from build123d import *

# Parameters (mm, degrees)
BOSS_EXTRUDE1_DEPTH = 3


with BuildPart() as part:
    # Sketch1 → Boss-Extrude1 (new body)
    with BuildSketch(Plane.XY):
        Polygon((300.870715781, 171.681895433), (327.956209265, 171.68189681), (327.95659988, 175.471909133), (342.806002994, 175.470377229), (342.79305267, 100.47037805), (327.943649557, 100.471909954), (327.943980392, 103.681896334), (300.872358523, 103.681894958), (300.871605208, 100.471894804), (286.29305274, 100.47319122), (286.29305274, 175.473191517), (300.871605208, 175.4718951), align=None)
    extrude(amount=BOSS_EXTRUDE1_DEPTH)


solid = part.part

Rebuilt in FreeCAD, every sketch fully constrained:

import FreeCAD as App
import Part
import Sketcher
from FreeCAD import Vector
Q = App.Units.Quantity

doc = App.newDocument("Part")
body = doc.addObject("PartDesign::Body", "Body")

# Sketch on XY plane
sketch1 = body.newObject("Sketcher::SketchObject", "Sketch")
sketch1.AttachmentSupport = (doc.getObject("XY_Plane"), [""])
sketch1.MapMode = "FlatFace"
sketch1.addGeometry([
    Part.LineSegment(Vector(327.956209, 171.681897, 0), Vector(300.870716, 171.681895, 0)),  # 0
    Part.LineSegment(Vector(300.870716, 171.681895, 0), Vector(300.871605, 175.471895, 0)),  # 1
    Part.LineSegment(Vector(300.871605, 175.471895, 0), Vector(286.293053, 175.473192, 0)),  # 2
    Part.LineSegment(Vector(286.293053, 175.473192, 0), Vector(286.293053, 100.473191, 0)),  # 3
    Part.LineSegment(Vector(286.293053, 100.473191, 0), Vector(300.871605, 100.471895, 0)),  # 4
    Part.LineSegment(Vector(300.871605, 100.471895, 0), Vector(300.872359, 103.681895, 0)),  # 5
    Part.LineSegment(Vector(300.872359, 103.681895, 0), Vector(327.94398, 103.681896, 0)),  # 6
    Part.LineSegment(Vector(327.94398, 103.681896, 0), Vector(327.94365, 100.47191, 0)),  # 7
    Part.LineSegment(Vector(327.94365, 100.47191, 0), Vector(342.793053, 100.470378, 0)),  # 8
    Part.LineSegment(Vector(342.793053, 100.470378, 0), Vector(342.806003, 175.470377, 0)),  # 9
    Part.LineSegment(Vector(342.806003, 175.470377, 0), Vector(327.9566, 175.471909, 0)),  # 10
    Part.LineSegment(Vector(327.9566, 175.471909, 0), Vector(327.956209, 171.681897, 0)),  # 11
], False)
sketch1.addConstraint([
    Sketcher.Constraint("Coincident", 0, 2, 1, 1),
    Sketcher.Constraint("Coincident", 1, 2, 2, 1),
    Sketcher.Constraint("Coincident", 2, 2, 3, 1),
    Sketcher.Constraint("Coincident", 3, 2, 4, 1),
    Sketcher.Constraint("Coincident", 4, 2, 5, 1),
    Sketcher.Constraint("Coincident", 5, 2, 6, 1),
    Sketcher.Constraint("Coincident", 6, 2, 7, 1),
    Sketcher.Constraint("Coincident", 7, 2, 8, 1),
    Sketcher.Constraint("Coincident", 8, 2, 9, 1),
    Sketcher.Constraint("Coincident", 9, 2, 10, 1),
    Sketcher.Constraint("Coincident", 10, 2, 11, 1),
    Sketcher.Constraint("Coincident", 11, 2, 0, 1),
    Sketcher.Constraint("Horizontal", 0),
    Sketcher.Constraint("Vertical", 3),
    Sketcher.Constraint("Horizontal", 6),
    Sketcher.Constraint("Parallel", 2, 4),
    Sketcher.Constraint("Parallel", 1, 5),
    Sketcher.Constraint("Perpendicular", 7, 8),
    Sketcher.Constraint("Parallel", 8, 10),
    Sketcher.Constraint("Perpendicular", 10, 11),
    Sketcher.Constraint("Vertical", 1, 2, 4, 2),
    Sketcher.Constraint("Equal", 8, 10),
    Sketcher.Constraint("DistanceY", 3, 2, 3, 1, Q("75 mm")),
    Sketcher.Constraint("Distance", 9, Q("75 mm")),
    Sketcher.Constraint("DistanceY", 5, 2, 0, 2, Q("68 mm")),
    Sketcher.Constraint("DistanceX", 3, 2, 8, 2, Q("56.5 mm")),
    Sketcher.Constraint("Distance", 1, Q("3.79 mm")),
    Sketcher.Constraint("DistanceX", 6, 1, 6, 2, Q("27.071622 mm")),
    Sketcher.Constraint("DistanceX", -1, 1, 10, 2, Q("327.9566 mm")),
    Sketcher.Constraint("DistanceX", 0, 2, 0, 1, Q("27.085493 mm")),
    Sketcher.Constraint("DistanceY", -1, 1, 2, 2, Q("175.473192 mm")),
    Sketcher.Constraint("DistanceX", -1, 1, 5, 2, Q("300.872359 mm")),
    Sketcher.Constraint("DistanceX", -1, 1, 7, 2, Q("327.94365 mm")),
    Sketcher.Constraint("DistanceY", -1, 1, 7, 2, Q("100.47191 mm")),
    Sketcher.Constraint("DistanceY", 8, 2, 6, 2, Q("3.211518 mm")),
    Sketcher.Constraint("Distance", 2, Q("14.578553 mm")),
])
pad1 = body.newObject("PartDesign::Pad", "Pad")
pad1.Profile = sketch1
pad1.Length = 3

doc.recompute()
